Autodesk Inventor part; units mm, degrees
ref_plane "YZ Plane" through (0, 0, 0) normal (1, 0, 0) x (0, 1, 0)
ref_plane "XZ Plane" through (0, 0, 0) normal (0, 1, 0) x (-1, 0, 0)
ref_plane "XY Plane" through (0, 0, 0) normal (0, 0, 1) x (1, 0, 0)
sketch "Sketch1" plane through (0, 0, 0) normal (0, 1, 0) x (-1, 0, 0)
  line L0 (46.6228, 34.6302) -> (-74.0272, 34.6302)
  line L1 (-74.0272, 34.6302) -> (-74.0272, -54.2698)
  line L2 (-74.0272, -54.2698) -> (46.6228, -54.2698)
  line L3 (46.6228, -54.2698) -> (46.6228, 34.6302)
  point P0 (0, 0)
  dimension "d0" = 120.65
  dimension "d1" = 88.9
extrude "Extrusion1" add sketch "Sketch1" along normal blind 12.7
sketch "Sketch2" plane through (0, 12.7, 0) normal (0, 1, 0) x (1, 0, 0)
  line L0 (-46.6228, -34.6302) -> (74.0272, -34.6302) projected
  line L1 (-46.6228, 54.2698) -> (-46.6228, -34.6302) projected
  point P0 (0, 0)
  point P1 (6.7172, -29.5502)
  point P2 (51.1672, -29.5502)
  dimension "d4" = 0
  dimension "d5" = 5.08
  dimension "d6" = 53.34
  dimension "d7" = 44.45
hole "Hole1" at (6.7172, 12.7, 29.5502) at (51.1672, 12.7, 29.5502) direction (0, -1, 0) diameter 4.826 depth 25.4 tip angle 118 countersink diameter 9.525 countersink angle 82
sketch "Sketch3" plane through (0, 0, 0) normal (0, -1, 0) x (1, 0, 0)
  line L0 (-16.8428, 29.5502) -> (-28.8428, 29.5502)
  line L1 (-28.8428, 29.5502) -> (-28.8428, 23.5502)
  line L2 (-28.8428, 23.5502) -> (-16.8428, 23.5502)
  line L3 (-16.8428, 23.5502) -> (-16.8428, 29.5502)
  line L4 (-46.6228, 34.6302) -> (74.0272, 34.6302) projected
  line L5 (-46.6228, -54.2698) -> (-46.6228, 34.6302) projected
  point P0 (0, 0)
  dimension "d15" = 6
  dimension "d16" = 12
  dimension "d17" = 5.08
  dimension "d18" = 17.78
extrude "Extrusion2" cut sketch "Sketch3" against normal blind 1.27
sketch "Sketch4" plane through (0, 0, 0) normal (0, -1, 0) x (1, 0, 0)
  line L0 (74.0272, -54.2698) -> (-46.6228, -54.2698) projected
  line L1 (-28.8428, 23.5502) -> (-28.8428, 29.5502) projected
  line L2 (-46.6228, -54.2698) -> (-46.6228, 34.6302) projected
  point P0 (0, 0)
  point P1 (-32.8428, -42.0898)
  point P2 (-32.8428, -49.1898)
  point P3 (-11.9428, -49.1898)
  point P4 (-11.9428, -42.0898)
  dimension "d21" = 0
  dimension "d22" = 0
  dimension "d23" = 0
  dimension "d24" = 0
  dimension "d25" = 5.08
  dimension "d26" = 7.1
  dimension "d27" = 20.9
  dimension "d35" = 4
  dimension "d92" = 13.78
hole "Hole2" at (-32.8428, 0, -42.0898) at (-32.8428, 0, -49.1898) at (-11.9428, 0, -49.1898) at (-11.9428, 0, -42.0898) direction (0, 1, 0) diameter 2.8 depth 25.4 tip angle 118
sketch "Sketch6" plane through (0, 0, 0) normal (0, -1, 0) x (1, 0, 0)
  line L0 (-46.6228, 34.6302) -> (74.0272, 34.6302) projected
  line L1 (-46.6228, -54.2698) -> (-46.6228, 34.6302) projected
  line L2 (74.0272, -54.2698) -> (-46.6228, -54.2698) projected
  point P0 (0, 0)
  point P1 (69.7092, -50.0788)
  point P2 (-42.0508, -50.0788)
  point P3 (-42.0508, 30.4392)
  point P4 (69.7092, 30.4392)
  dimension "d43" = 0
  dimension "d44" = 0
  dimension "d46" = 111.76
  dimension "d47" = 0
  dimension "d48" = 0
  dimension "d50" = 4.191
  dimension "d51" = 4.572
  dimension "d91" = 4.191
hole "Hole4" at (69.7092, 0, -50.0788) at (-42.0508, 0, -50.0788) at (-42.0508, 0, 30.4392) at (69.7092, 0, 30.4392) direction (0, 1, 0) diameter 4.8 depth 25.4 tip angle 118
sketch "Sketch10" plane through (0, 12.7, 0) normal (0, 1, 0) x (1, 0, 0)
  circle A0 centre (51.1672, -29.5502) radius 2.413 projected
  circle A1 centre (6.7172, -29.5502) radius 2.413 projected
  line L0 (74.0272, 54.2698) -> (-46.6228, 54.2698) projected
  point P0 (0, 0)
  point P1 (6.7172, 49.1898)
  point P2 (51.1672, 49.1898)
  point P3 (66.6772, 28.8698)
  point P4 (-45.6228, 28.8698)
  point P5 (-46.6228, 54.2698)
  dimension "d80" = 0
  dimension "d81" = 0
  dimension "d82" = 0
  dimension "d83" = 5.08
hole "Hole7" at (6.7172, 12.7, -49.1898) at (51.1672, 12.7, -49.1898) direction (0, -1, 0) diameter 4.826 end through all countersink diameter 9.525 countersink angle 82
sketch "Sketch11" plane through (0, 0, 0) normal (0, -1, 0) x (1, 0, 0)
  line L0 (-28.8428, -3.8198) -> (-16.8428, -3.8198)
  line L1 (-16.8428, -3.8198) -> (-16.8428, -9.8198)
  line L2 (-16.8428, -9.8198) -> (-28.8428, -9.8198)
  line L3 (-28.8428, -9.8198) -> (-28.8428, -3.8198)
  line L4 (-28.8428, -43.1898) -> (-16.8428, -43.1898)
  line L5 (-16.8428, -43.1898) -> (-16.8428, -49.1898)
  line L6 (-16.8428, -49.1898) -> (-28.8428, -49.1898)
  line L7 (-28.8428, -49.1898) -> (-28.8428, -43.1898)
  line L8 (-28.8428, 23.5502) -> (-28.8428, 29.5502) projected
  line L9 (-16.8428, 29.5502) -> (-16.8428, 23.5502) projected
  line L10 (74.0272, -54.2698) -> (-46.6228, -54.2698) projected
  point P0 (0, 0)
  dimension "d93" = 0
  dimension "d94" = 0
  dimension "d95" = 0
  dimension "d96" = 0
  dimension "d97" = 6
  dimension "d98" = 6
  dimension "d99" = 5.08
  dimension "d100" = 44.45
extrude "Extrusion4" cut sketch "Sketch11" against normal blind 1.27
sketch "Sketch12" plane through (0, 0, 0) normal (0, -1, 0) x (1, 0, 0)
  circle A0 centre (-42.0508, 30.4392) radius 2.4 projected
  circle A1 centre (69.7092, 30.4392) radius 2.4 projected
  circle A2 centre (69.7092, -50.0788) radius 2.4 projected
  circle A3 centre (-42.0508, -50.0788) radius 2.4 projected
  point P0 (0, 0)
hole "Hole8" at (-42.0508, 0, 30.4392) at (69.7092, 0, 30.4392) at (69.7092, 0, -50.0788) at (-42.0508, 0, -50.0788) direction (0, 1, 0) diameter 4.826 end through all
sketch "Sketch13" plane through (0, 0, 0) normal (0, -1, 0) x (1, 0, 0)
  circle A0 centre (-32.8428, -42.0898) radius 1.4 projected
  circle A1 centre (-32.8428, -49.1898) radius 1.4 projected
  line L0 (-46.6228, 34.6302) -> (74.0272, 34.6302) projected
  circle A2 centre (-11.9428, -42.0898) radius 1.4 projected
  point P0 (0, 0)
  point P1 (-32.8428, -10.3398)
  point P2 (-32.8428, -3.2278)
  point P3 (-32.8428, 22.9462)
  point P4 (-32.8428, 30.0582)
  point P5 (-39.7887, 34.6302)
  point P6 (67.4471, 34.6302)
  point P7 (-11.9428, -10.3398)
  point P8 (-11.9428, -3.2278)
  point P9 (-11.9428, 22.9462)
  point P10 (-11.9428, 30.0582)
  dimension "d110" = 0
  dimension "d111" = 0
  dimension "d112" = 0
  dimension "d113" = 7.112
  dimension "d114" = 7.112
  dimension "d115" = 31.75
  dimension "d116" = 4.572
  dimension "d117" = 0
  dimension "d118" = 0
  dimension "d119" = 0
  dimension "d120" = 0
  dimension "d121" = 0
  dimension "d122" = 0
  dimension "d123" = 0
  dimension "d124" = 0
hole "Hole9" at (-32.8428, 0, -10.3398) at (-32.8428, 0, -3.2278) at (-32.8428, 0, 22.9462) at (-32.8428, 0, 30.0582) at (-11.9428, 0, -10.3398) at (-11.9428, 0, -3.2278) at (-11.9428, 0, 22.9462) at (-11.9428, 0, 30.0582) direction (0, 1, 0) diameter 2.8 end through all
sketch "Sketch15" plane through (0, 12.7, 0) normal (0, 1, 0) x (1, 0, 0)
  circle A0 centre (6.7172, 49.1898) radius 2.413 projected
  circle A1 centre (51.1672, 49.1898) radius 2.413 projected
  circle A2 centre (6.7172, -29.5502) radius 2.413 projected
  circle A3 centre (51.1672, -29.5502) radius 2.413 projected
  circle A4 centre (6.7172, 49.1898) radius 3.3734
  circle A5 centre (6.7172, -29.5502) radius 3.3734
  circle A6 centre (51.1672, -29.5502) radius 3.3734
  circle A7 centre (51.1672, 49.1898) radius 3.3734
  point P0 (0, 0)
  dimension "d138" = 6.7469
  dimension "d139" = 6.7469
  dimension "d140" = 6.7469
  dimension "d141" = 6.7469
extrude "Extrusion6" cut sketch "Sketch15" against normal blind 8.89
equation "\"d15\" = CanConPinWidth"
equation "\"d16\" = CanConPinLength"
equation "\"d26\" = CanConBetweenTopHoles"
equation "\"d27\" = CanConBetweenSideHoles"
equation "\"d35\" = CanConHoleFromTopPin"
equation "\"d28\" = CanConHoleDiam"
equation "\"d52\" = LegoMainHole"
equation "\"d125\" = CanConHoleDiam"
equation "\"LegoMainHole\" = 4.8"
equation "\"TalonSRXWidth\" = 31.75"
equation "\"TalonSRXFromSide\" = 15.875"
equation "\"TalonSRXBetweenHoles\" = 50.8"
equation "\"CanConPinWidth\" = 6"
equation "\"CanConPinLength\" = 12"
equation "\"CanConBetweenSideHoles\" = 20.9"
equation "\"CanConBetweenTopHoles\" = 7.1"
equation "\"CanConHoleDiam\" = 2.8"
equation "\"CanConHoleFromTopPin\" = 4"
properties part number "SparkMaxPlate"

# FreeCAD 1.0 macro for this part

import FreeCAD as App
import Part
import Sketcher
Q = App.Units.Quantity

doc = App.newDocument("Part")
body = doc.addObject("PartDesign::Body", "Body")

sketch1 = doc.addObject("Sketcher::SketchObject", "Sketch")
body.addObject(sketch1)
sketch1.AttachmentSupport = (doc.XZ_Plane, [""])
sketch1.MapMode = "FlatFace"
sketch1.addGeometry([
    Part.LineSegment(App.Vector(-47, -54, 0), App.Vector(-47, 35, 0)),
    Part.LineSegment(App.Vector(-47, 35, 0), App.Vector(74, 35, 0)),
    Part.LineSegment(App.Vector(74, 35, 0), App.Vector(74, -54, 0)),
    Part.LineSegment(App.Vector(74, -54, 0), App.Vector(-47, -54, 0)),
], False)
sketch1.addConstraint([
    Sketcher.Constraint("Coincident", 0, 2, 1, 1),
    Sketcher.Constraint("Coincident", 1, 2, 2, 1),
    Sketcher.Constraint("Coincident", 2, 2, 3, 1),
    Sketcher.Constraint("Coincident", 3, 2, 0, 1),
    Sketcher.Constraint("Vertical", 0),
    Sketcher.Constraint("Horizontal", 1),
    Sketcher.Constraint("Vertical", 2),
    Sketcher.Constraint("Horizontal", 3),
    Sketcher.Constraint("DistanceY", 0, 1, 0, 2, Q("3.5 in")),
    Sketcher.Constraint("DistanceX", 1, 1, 1, 2, Q("4.75 in")),
    Sketcher.Constraint("DistanceY", -1, 1, 0, 2, Q("1.3634 in")),
    Sketcher.Constraint("DistanceX", 0, 2, -1, 1, 46.6228),
])
pad1 = doc.addObject("PartDesign::Pad", "Pad")
body.addObject(pad1)
pad1.Profile = sketch1
pad1.Length = Q("0.5 in")
pad1.Reversed = True

sketch2 = doc.addObject("Sketcher::SketchObject", "Sketch001")
body.addObject(sketch2)
sketch2.AttachmentSupport = (doc.XZ_Plane, [""])
sketch2.MapMode = "FlatFace"
sketch2.AttachmentOffset = App.Placement(App.Vector(0, 0, -0.5 * 25.4), App.Rotation())
sketch2.addGeometry([
    Part.Circle(App.Vector(6.7, 29.6, 0), App.Vector(0, 0, 1), 2.4),
    Part.Circle(App.Vector(51.2, 29.6, 0), App.Vector(0, 0, 1), 2.4),
], False)
sketch2.addConstraint([
    Sketcher.Constraint("Equal", 0, 1),
    Sketcher.Constraint("Horizontal", 0, 3, 1, 3),
    Sketcher.Constraint("Diameter", 0, Q("0.19 in")),
    Sketcher.Constraint("DistanceX", 0, 3, 1, 3, Q("1.75 in")),
    Sketcher.Constraint("DistanceY", -1, 1, 0, 3, Q("1.1634 in")),
    Sketcher.Constraint("DistanceX", -1, 1, 0, 3, 6.7172),
])
doc.recompute()
hole = doc.addObject("PartDesign::Hole", "Hole")
body.addObject(hole)
hole.Profile = sketch2
hole.ThreadType = "None"
hole.Diameter = Q("0.19 in")
hole.DepthType = "Dimension"
hole.Depth = Q("1 in")
hole.DrillPoint = "Angled"
hole.DrillPointAngle = 118
hole.HoleCutType = "Countersink"
hole.HoleCutDiameter = Q("0.375 in")
hole.HoleCutCountersinkAngle = 82
hole.Reversed = True

sketch3 = doc.addObject("Sketcher::SketchObject", "Sketch002")
body.addObject(sketch3)
sketch3.AttachmentSupport = (doc.XZ_Plane, [""])
sketch3.MapMode = "FlatFace"
sketch3.addGeometry([
    Part.LineSegment(App.Vector(-17, 24, 0), App.Vector(-17, 30, 0)),
    Part.LineSegment(App.Vector(-17, 30, 0), App.Vector(-29, 30, 0)),
    Part.LineSegment(App.Vector(-29, 30, 0), App.Vector(-29, 24, 0)),
    Part.LineSegment(App.Vector(-29, 24, 0), App.Vector(-17, 24, 0)),
], False)
sketch3.addConstraint([
    Sketcher.Constraint("Coincident", 0, 2, 1, 1),
    Sketcher.Constraint("Coincident", 1, 2, 2, 1),
    Sketcher.Constraint("Coincident", 2, 2, 3, 1),
    Sketcher.Constraint("Coincident", 3, 2, 0, 1),
    Sketcher.Constraint("Vertical", 0),
    Sketcher.Constraint("Horizontal", 1),
    Sketcher.Constraint("Vertical", 2),
    Sketcher.Constraint("Horizontal", 3),
    Sketcher.Constraint("DistanceX", 1, 2, 1, 1, 12.0),
    Sketcher.Constraint("DistanceY", 0, 1, 0, 2, 6.0),
    Sketcher.Constraint("DistanceX", 0, 2, -1, 1, Q("0.6631 in")),
    Sketcher.Constraint("DistanceY", -1, 1, 0, 2, Q("1.1634 in")),
])
pocket1 = doc.addObject("PartDesign::Pocket", "Pocket")
body.addObject(pocket1)
pocket1.Profile = sketch3
pocket1.Length = Q("0.05 in")

sketch4 = doc.addObject("Sketcher::SketchObject", "Sketch003")
body.addObject(sketch4)
sketch4.AttachmentSupport = (doc.XZ_Plane, [""])
sketch4.MapMode = "FlatFace"
sketch4.addGeometry([
    Part.Circle(App.Vector(-32.8, -42.1, 0), App.Vector(0, 0, 1), 1.4),
    Part.Circle(App.Vector(-32.8, -49.2, 0), App.Vector(0, 0, 1), 1.4),
    Part.Circle(App.Vector(-11.9, -49.2, 0), App.Vector(0, 0, 1), 1.4),
    Part.Circle(App.Vector(-11.9, -42.1, 0), App.Vector(0, 0, 1), 1.4),
], False)
sketch4.addConstraint([
    Sketcher.Constraint("Equal", 0, 1),
    Sketcher.Constraint("Equal", 1, 2),
    Sketcher.Constraint("Equal", 2, 3),
    Sketcher.Constraint("Horizontal", 1, 3, 2, 3),
    Sketcher.Constraint("Horizontal", 0, 3, 3, 3),
    Sketcher.Constraint("Vertical", 0, 3, 1, 3),
    Sketcher.Constraint("Vertical", 2, 3, 3, 3),
    Sketcher.Constraint("Diameter", 0, 2.8),
    Sketcher.Constraint("DistanceY", 1, 3, -1, 1, Q("1.9366 in")),
    Sketcher.Constraint("DistanceX", 2, 3, -1, 1, Q("0.4702 in")),
    Sketcher.Constraint("DistanceX", 0, 3, -1, 1, 32.8428),
    Sketcher.Constraint("DistanceY", 0, 3, -1, 1, 42.0898),
])
doc.recompute()
hole2 = doc.addObject("PartDesign::Hole", "Hole001")
body.addObject(hole2)
hole2.Profile = sketch4
hole2.ThreadType = "None"
hole2.Diameter = 2.8
hole2.DepthType = "Dimension"
hole2.Depth = Q("1 in")
hole2.DrillPoint = "Angled"
hole2.DrillPointAngle = 118

sketch5 = doc.addObject("Sketcher::SketchObject", "Sketch004")
body.addObject(sketch5)
sketch5.AttachmentSupport = (doc.XZ_Plane, [""])
sketch5.MapMode = "FlatFace"
sketch5.addGeometry([
    Part.Circle(App.Vector(69.7, -50.1, 0), App.Vector(0, 0, 1), 2.4),
    Part.Circle(App.Vector(-42.1, -50.1, 0), App.Vector(0, 0, 1), 2.4),
    Part.Circle(App.Vector(-42.1, 30.4, 0), App.Vector(0, 0, 1), 2.4),
    Part.Circle(App.Vector(69.7, 30.4, 0), App.Vector(0, 0, 1), 2.4),
], False)
sketch5.addConstraint([
    Sketcher.Constraint("Equal", 0, 1),
    Sketcher.Constraint("Equal", 1, 2),
    Sketcher.Constraint("Equal", 2, 3),
    Sketcher.Constraint("Horizontal", 0, 3, 1, 3),
    Sketcher.Constraint("Horizontal", 2, 3, 3, 3),
    Sketcher.Constraint("Vertical", 1, 3, 2, 3),
    Sketcher.Constraint("Vertical", 0, 3, 3, 3),
    Sketcher.Constraint("DistanceX", 1, 3, 0, 3, Q("4.4 in")),
    Sketcher.Constraint("Diameter", 0, 4.8),
    Sketcher.Constraint("DistanceY", 1, 3, 2, 3, Q("3.17 in")),
    Sketcher.Constraint("DistanceY", 0, 3, -1, 1, Q("1.9716 in")),
    Sketcher.Constraint("DistanceX", -1, 1, 0, 3, 69.7092),
])
doc.recompute()
hole3 = doc.addObject("PartDesign::Hole", "Hole002")
body.addObject(hole3)
hole3.Profile = sketch5
hole3.ThreadType = "None"
hole3.Diameter = 4.8
hole3.DepthType = "Dimension"
hole3.Depth = Q("1 in")
hole3.DrillPoint = "Angled"
hole3.DrillPointAngle = 118

sketch6 = doc.addObject("Sketcher::SketchObject", "Sketch005")
body.addObject(sketch6)
sketch6.AttachmentSupport = (doc.XZ_Plane, [""])
sketch6.MapMode = "FlatFace"
sketch6.AttachmentOffset = App.Placement(App.Vector(0, 0, -0.5 * 25.4), App.Rotation())
sketch6.addGeometry([
    Part.Circle(App.Vector(6.7, -49.2, 0), App.Vector(0, 0, 1), 2.4),
    Part.Circle(App.Vector(51.2, -49.2, 0), App.Vector(0, 0, 1), 2.4),
], False)
sketch6.addConstraint([
    Sketcher.Constraint("Equal", 0, 1),
    Sketcher.Constraint("Horizontal", 0, 3, 1, 3),
    Sketcher.Constraint("Diameter", 0, Q("0.19 in")),
    Sketcher.Constraint("DistanceX", 0, 3, 1, 3, Q("1.75 in")),
    Sketcher.Constraint("DistanceY", 0, 3, -1, 1, Q("1.9366 in")),
    Sketcher.Constraint("DistanceX", -1, 1, 0, 3, 6.7172),
])
doc.recompute()
hole4 = doc.addObject("PartDesign::Hole", "Hole003")
body.addObject(hole4)
hole4.Profile = sketch6
hole4.ThreadType = "None"
hole4.Diameter = Q("0.19 in")
hole4.DepthType = "ThroughAll"
hole4.HoleCutType = "Countersink"
hole4.HoleCutDiameter = Q("0.375 in")
hole4.HoleCutCountersinkAngle = 82
hole4.Reversed = True

sketch7 = doc.addObject("Sketcher::SketchObject", "Sketch006")
body.addObject(sketch7)
sketch7.AttachmentSupport = (doc.XZ_Plane, [""])
sketch7.MapMode = "FlatFace"
sketch7.addGeometry([
    Part.LineSegment(App.Vector(-17, -4, 0), App.Vector(-29, -4, 0)),
    Part.LineSegment(App.Vector(-29, -4, 0), App.Vector(-29, -10, 0)),
    Part.LineSegment(App.Vector(-29, -10, 0), App.Vector(-17, -10, 0)),
    Part.LineSegment(App.Vector(-17, -10, 0), App.Vector(-17, -4, 0)),
    Part.LineSegment(App.Vector(-17, -43, 0), App.Vector(-29, -43, 0)),
    Part.LineSegment(App.Vector(-29, -43, 0), App.Vector(-29, -49, 0)),
    Part.LineSegment(App.Vector(-29, -49, 0), App.Vector(-17, -49, 0)),
    Part.LineSegment(App.Vector(-17, -49, 0), App.Vector(-17, -43, 0)),
], False)
sketch7.addConstraint([
    Sketcher.Constraint("Coincident", 0, 2, 1, 1),
    Sketcher.Constraint("Coincident", 1, 2, 2, 1),
    Sketcher.Constraint("Coincident", 2, 2, 3, 1),
    Sketcher.Constraint("Coincident", 3, 2, 0, 1),
    Sketcher.Constraint("Coincident", 4, 2, 5, 1),
    Sketcher.Constraint("Coincident", 5, 2, 6, 1),
    Sketcher.Constraint("Coincident", 6, 2, 7, 1),
    Sketcher.Constraint("Coincident", 7, 2, 4, 1),
    Sketcher.Constraint("Horizontal", 0),
    Sketcher.Constraint("Vertical", 1),
    Sketcher.Constraint("Horizontal", 2),
    Sketcher.Constraint("Vertical", 3),
    Sketcher.Constraint("Horizontal", 4),
    Sketcher.Constraint("Vertical", 5),
    Sketcher.Constraint("Horizontal", 6),
    Sketcher.Constraint("Vertical", 7),
    Sketcher.Constraint("Vertical", 1, 2, 4, 2),
    Sketcher.Constraint("Vertical", 3, 2, 6, 2),
    Sketcher.Constraint("Equal", 3, 5),
    Sketcher.Constraint("DistanceY", 1, 2, 1, 1, 6.0),
    Sketcher.Constraint("DistanceY", 4, 2, 0, 2, Q("1.55 in")),
    Sketcher.Constraint("DistanceX", 0, 2, 0, 1, 12.0),
    Sketcher.Constraint("DistanceY", 1, 2, -1, 1, Q("0.3866 in")),
    Sketcher.Constraint("DistanceX", 2, 2, -1, 1, Q("0.6631 in")),
])
pocket2 = doc.addObject("PartDesign::Pocket", "Pocket001")
body.addObject(pocket2)
pocket2.Profile = sketch7
pocket2.Length = Q("0.05 in")

sketch8 = doc.addObject("Sketcher::SketchObject", "Sketch007")
body.addObject(sketch8)
sketch8.AttachmentSupport = (doc.XZ_Plane, [""])
sketch8.MapMode = "FlatFace"
sketch8.addGeometry([
    Part.Circle(App.Vector(-42.1, 30.4, 0), App.Vector(0, 0, 1), 2.4),
    Part.Circle(App.Vector(69.7, 30.4, 0), App.Vector(0, 0, 1), 2.4),
    Part.Circle(App.Vector(69.7, -50.1, 0), App.Vector(0, 0, 1), 2.4),
    Part.Circle(App.Vector(-42.1, -50.1, 0), App.Vector(0, 0, 1), 2.4),
], False)
sketch8.addConstraint([
    Sketcher.Constraint("Equal", 0, 1),
    Sketcher.Constraint("Equal", 1, 2),
    Sketcher.Constraint("Equal", 2, 3),
    Sketcher.Constraint("Horizontal", 0, 3, 1, 3),
    Sketcher.Constraint("Horizontal", 2, 3, 3, 3),
    Sketcher.Constraint("Vertical", 1, 3, 2, 3),
    Sketcher.Constraint("Vertical", 0, 3, 3, 3),
    Sketcher.Constraint("Diameter", 0, Q("0.19 in")),
    Sketcher.Constraint("DistanceX", 0, 3, 1, 3, Q("4.4 in")),
    Sketcher.Constraint("DistanceY", 2, 3, 1, 3, Q("3.17 in")),
    Sketcher.Constraint("DistanceY", -1, 1, 0, 3, Q("1.1984 in")),
    Sketcher.Constraint("DistanceX", 0, 3, -1, 1, 42.0508),
])
doc.recompute()
hole5 = doc.addObject("PartDesign::Hole", "Hole004")
body.addObject(hole5)
hole5.Profile = sketch8
hole5.ThreadType = "None"
hole5.Diameter = Q("0.19 in")
hole5.DepthType = "ThroughAll"

sketch9 = doc.addObject("Sketcher::SketchObject", "Sketch008")
body.addObject(sketch9)
sketch9.AttachmentSupport = (doc.XZ_Plane, [""])
sketch9.MapMode = "FlatFace"
sketch9.addGeometry([
    Part.Circle(App.Vector(-32.8, -10.3, 0), App.Vector(0, 0, 1), 1.4),
    Part.Circle(App.Vector(-32.8, -3.2, 0), App.Vector(0, 0, 1), 1.4),
    Part.Circle(App.Vector(-32.8, 22.9, 0), App.Vector(0, 0, 1), 1.4),
    Part.Circle(App.Vector(-32.8, 30.1, 0), App.Vector(0, 0, 1), 1.4),
    Part.Circle(App.Vector(-11.9, -10.3, 0), App.Vector(0, 0, 1), 1.4),
    Part.Circle(App.Vector(-11.9, -3.2, 0), App.Vector(0, 0, 1), 1.4),
    Part.Circle(App.Vector(-11.9, 22.9, 0), App.Vector(0, 0, 1), 1.4),
    Part.Circle(App.Vector(-11.9, 30.1, 0), App.Vector(0, 0, 1), 1.4),
], False)
sketch9.addConstraint([
    Sketcher.Constraint("Equal", 0, 1),
    Sketcher.Constraint("Equal", 1, 2),
    Sketcher.Constraint("Equal", 2, 3),
    Sketcher.Constraint("Equal", 3, 4),
    Sketcher.Constraint("Equal", 4, 5),
    Sketcher.Constraint("Equal", 5, 6),
    Sketcher.Constraint("Equal", 6, 7),
    Sketcher.Constraint("Horizontal", 0, 3, 4, 3),
    Sketcher.Constraint("Horizontal", 1, 3, 5, 3),
    Sketcher.Constraint("Horizontal", 2, 3, 6, 3),
    Sketcher.Constraint("Horizontal", 3, 3, 7, 3),
    Sketcher.Constraint("Vertical", 0, 3, 1, 3),
    Sketcher.Constraint("Vertical", 1, 3, 2, 3),
    Sketcher.Constraint("Vertical", 2, 3, 3, 3),
    Sketcher.Constraint("Vertical", 4, 3, 5, 3),
    Sketcher.Constraint("Vertical", 5, 3, 6, 3),
    Sketcher.Constraint("Vertical", 6, 3, 7, 3),
    Sketcher.Constraint("Diameter", 0, 2.8),
    Sketcher.Constraint("DistanceY", 0, 3, 1, 3, Q("0.28 in")),
    Sketcher.Constraint("DistanceY", 2, 3, 3, 3, Q("0.28 in")),
    Sketcher.Constraint("DistanceY", -1, 1, 2, 3, Q("0.9034 in")),
    Sketcher.Constraint("DistanceX", 4, 3, -1, 1, Q("0.4702 in")),
    Sketcher.Constraint("DistanceX", 0, 3, -1, 1, 32.8428),
    Sketcher.Constraint("DistanceY", 0, 3, -1, 1, 10.3398),
])
doc.recompute()
hole6 = doc.addObject("PartDesign::Hole", "Hole005")
body.addObject(hole6)
hole6.Profile = sketch9
hole6.ThreadType = "None"
hole6.Diameter = 2.8
hole6.DepthType = "ThroughAll"

sketch10 = doc.addObject("Sketcher::SketchObject", "Sketch009")
body.addObject(sketch10)
sketch10.AttachmentSupport = (doc.XZ_Plane, [""])
sketch10.MapMode = "FlatFace"
sketch10.AttachmentOffset = App.Placement(App.Vector(0, 0, -0.5 * 25.4), App.Rotation())
sketch10.addGeometry([
    Part.Circle(App.Vector(6.7, -49.2, 0), App.Vector(0, 0, 1), 3.4),
    Part.Circle(App.Vector(6.7, -49.2, 0), App.Vector(0, 0, 1), 2.4),
    Part.Circle(App.Vector(6.7, 29.6, 0), App.Vector(0, 0, 1), 3.4),
    Part.Circle(App.Vector(6.7, 29.6, 0), App.Vector(0, 0, 1), 2.4),
    Part.Circle(App.Vector(51.2, 29.6, 0), App.Vector(0, 0, 1), 3.4),
    Part.Circle(App.Vector(51.2, 29.6, 0), App.Vector(0, 0, 1), 2.4),
    Part.Circle(App.Vector(51.2, -49.2, 0), App.Vector(0, 0, 1), 3.4),
    Part.Circle(App.Vector(51.2, -49.2, 0), App.Vector(0, 0, 1), 2.4),
], False)
sketch10.addConstraint([
    Sketcher.Constraint("Coincident", 1, 3, 0, 3),
    Sketcher.Constraint("Coincident", 3, 3, 2, 3),
    Sketcher.Constraint("Coincident", 5, 3, 4, 3),
    Sketcher.Constraint("Coincident", 7, 3, 6, 3),
    Sketcher.Constraint("Equal", 0, 2),
    Sketcher.Constraint("Equal", 1, 3),
    Sketcher.Constraint("Equal", 2, 4),
    Sketcher.Constraint("Equal", 3, 5),
    Sketcher.Constraint("Equal", 4, 6),
    Sketcher.Constraint("Equal", 5, 7),
    Sketcher.Constraint("Horizontal", 3, 3, 4, 3),
    Sketcher.Constraint("Horizontal", 1, 3, 6, 3),
    Sketcher.Constraint("Vertical", 1, 3, 2, 3),
    Sketcher.Constraint("Vertical", 5, 3, 6, 3),
    Sketcher.Constraint("Diameter", 0, Q("0.265622 in")),
    Sketcher.Constraint("Diameter", 1, Q("0.19 in")),
    Sketcher.Constraint("DistanceY", 0, 3, 2, 3, Q("3.1 in")),
    Sketcher.Constraint("DistanceX", 2, 3, 4, 3, Q("1.75 in")),
    Sketcher.Constraint("DistanceY", 0, 3, -1, 1, Q("1.9366 in")),
    Sketcher.Constraint("DistanceX", -1, 1, 0, 3, 6.7172),
])
pocket3 = doc.addObject("PartDesign::Pocket", "Pocket002")
body.addObject(pocket3)
pocket3.Profile = sketch10
pocket3.Length = Q("0.35 in")
pocket3.Reversed = True

doc.recompute()
